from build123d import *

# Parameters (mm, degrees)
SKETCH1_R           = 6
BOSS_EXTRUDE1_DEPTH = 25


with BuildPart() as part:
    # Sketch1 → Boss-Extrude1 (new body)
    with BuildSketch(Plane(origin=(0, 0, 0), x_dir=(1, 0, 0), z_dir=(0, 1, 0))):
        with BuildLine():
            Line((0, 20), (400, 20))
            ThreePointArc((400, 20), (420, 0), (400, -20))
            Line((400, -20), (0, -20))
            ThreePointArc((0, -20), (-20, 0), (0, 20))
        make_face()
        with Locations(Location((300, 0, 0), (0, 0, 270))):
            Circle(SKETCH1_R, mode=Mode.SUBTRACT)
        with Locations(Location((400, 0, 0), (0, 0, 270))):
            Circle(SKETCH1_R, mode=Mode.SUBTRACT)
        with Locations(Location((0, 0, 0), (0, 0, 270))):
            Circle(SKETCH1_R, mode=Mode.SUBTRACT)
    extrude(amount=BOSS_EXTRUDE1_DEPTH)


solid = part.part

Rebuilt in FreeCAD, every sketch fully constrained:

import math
import FreeCAD as App
import Part
import Sketcher
from FreeCAD import Vector
Q = App.Units.Quantity

doc = App.newDocument("Part")
body = doc.addObject("PartDesign::Body", "Body")

# Sketch on XZ plane
sketch1 = doc.addObject("Sketcher::SketchObject", "Sketch")
body.addObject(sketch1)
sketch1.AttachmentSupport = (doc.XZ_Plane, [""])
sketch1.MapMode = "FlatFace"
sketch1.addGeometry(Part.LineSegment(Vector(400, -20, 0), Vector(0, -20, 0)), False)
sketch1.addGeometry(Part.ArcOfCircle(Part.Circle(Vector(0, 0, 0), Vector(0, 0, 1), 20), math.radians(90), math.radians(270)), False)
sketch1.addGeometry(Part.LineSegment(Vector(0, 20, 0), Vector(400, 20, 0)), False)
sketch1.addGeometry(Part.ArcOfCircle(Part.Circle(Vector(400, 0, 0), Vector(0, 0, 1), 20), math.radians(-90), math.radians(90)), False)
sketch1.addGeometry(Part.Circle(Vector(400, 0, 0), Vector(0, 0, 1), 6), False)
sketch1.addGeometry(Part.Circle(Vector(300, 0, 0), Vector(0, 0, 1), 6), False)
sketch1.addGeometry(Part.Circle(Vector(0, 0, 0), Vector(0, 0, 1), 6), False)
sketch1.addConstraint(Sketcher.Constraint("Tangent", 0, 2, 1, 2))
sketch1.addConstraint(Sketcher.Constraint("Tangent", 1, 1, 2, 1))
sketch1.addConstraint(Sketcher.Constraint("Tangent", 2, 2, 3, 2))
sketch1.addConstraint(Sketcher.Constraint("Tangent", 3, 1, 0, 1))
sketch1.addConstraint(Sketcher.Constraint("Horizontal", 0))
sketch1.addConstraint(Sketcher.Constraint("Horizontal", 2))
sketch1.addConstraint(Sketcher.Constraint("Coincident", 1, 3, -1, 1))
sketch1.addConstraint(Sketcher.Constraint("Coincident", 6, 3, -1, 1))
sketch1.addConstraint(Sketcher.Constraint("Coincident", 4, 3, 3, 3))
sketch1.addConstraint(Sketcher.Constraint("Equal", 4, 5))
sketch1.addConstraint(Sketcher.Constraint("Equal", 5, 6))
sketch1.addConstraint(Sketcher.Constraint("PointOnObject", 5, 3, -1))
sketch1.addConstraint(Sketcher.Constraint("Diameter", 4, Q("12 mm")))
sketch1.addConstraint(Sketcher.Constraint("Radius", 1, Q("20 mm")))
sketch1.addConstraint(Sketcher.Constraint("DistanceX", 0, 2, 0, 1, Q("400 mm")))
sketch1.addConstraint(Sketcher.Constraint("DistanceX", -1, 1, 5, 3, Q("300 mm")))
pad1 = doc.addObject("PartDesign::Pad", "Pad")
body.addObject(pad1)
pad1.Profile = sketch1
pad1.Length = 25
pad1.Reversed = True

doc.recompute()
